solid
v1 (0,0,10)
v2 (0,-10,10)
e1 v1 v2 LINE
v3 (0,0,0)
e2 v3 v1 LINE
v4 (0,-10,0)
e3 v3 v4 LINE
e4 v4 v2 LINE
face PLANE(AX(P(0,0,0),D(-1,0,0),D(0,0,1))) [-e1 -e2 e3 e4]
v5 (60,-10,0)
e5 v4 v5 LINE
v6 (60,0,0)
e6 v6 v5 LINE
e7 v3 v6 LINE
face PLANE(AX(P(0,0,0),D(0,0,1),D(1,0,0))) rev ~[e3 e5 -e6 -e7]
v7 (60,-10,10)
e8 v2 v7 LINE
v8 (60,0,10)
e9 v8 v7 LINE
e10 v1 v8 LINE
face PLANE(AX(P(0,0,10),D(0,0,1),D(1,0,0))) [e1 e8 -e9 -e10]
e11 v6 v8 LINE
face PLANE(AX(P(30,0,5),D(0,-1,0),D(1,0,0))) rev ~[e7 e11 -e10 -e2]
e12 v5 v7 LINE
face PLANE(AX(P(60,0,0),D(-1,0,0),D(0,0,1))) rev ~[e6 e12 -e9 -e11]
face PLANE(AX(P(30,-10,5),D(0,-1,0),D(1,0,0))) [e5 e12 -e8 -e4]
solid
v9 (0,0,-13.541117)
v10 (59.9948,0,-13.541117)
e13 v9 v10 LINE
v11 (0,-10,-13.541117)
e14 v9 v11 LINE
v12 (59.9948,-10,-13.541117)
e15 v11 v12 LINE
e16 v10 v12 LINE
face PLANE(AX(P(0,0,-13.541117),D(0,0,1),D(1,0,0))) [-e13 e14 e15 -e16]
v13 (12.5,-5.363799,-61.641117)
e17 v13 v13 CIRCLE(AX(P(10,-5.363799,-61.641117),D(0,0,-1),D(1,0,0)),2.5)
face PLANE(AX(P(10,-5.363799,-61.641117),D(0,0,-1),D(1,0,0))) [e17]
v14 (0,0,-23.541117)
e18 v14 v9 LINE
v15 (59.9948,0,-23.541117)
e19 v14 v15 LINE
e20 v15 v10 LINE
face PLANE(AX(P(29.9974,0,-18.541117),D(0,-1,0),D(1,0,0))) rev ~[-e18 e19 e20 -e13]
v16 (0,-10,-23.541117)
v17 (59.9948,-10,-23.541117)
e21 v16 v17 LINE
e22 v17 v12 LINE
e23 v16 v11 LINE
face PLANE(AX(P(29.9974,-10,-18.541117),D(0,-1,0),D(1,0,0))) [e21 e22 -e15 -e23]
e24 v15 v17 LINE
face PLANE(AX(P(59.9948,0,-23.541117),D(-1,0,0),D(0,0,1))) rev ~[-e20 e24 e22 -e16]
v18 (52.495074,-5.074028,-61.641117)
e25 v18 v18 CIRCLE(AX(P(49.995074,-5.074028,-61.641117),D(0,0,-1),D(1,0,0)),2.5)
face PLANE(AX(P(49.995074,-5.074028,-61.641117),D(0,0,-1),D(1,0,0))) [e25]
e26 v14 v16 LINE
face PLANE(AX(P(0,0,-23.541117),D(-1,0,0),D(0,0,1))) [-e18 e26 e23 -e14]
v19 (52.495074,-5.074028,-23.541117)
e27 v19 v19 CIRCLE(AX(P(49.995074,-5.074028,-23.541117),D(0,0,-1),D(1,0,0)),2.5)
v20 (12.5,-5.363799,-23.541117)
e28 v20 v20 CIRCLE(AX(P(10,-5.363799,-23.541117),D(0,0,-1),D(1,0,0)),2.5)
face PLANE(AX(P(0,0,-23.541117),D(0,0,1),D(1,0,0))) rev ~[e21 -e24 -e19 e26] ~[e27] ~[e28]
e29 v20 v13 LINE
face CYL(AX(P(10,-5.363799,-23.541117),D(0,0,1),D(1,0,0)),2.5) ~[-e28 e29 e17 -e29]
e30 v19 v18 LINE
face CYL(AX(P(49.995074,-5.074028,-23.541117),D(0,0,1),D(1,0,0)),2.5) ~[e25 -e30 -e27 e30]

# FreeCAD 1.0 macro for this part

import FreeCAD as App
import Part
import Sketcher
from FreeCAD import Vector


def add_polygon(sketch, points):
    """Adds a closed chain of lines whose ends are joined by coincident constraints."""
    first, n = sketch.GeometryCount, len(points)
    for a, b in zip(points, points[1:] + points[:1]):
        sketch.addGeometry(Part.LineSegment(App.Vector(*a, 0), App.Vector(*b, 0)), False)
    for i in range(n):
        sketch.addConstraint(Sketcher.Constraint("Coincident", first + i, 2, first + (i + 1) % n, 1))

doc = App.newDocument("Part")
params = doc.addObject("Spreadsheet::Sheet", "Params")
for row, (alias, value) in enumerate([
    ("sketch1_width", "60 mm"),
    ("sketch1_height", "10 mm"),
    ("pad1_length", "10 mm"),
    ("sketch2_diameter", "5 mm"),
    ("pad2_length", "38.1 mm"),
], start=1):
    params.set(f"A{row}", alias)
    params.set(f"B{row}", "=" + value)
    params.setAlias(f"B{row}", alias)

body = doc.addObject("PartDesign::Body", "Body")
body.AllowCompound = True

# Sketch on XZ plane
sketch1 = body.newObject("Sketcher::SketchObject", "Sketch")
sketch1.AttachmentSupport = (doc.getObject("XZ_Plane"), [""])
sketch1.MapMode = "FlatFace"
add_polygon(sketch1, [(0, 10), (0, 0), (60, 0), (60, 10)])  # lines 0-3
add_polygon(sketch1, [(0, -14), (0, -24), (60, -24), (60, -14)])  # lines 4-7
sketch1.addConstraint(Sketcher.Constraint("Vertical", 0))
sketch1.addConstraint(Sketcher.Constraint("Horizontal", 1))
sketch1.addConstraint(Sketcher.Constraint("Vertical", 2))
sketch1.addConstraint(Sketcher.Constraint("Horizontal", 3))
sketch1.addConstraint(Sketcher.Constraint("Vertical", 4))
sketch1.addConstraint(Sketcher.Constraint("Horizontal", 5))
sketch1.addConstraint(Sketcher.Constraint("Vertical", 6))
sketch1.addConstraint(Sketcher.Constraint("Horizontal", 7))
sketch1.addConstraint(Sketcher.Constraint("Coincident", 0, 2, -1, 1))
sketch1.addConstraint(Sketcher.Constraint("PointOnObject", 4, 2, -2))
sketch1.addConstraint(Sketcher.Constraint("Equal", 2, 4))
sketch1.addConstraint(Sketcher.Constraint("DistanceX", 1, 1, 1, 2, 60.0))
sketch1.addConstraint(Sketcher.Constraint("DistanceY", 0, 2, 0, 1, 10.0))
sketch1.addConstraint(Sketcher.Constraint("DistanceX", 5, 1, 5, 2, 59.9948))
sketch1.addConstraint(Sketcher.Constraint("DistanceY", 4, 2, -1, 1, 23.541117))
sketch1.setExpression("Constraints[19]", "Params.sketch1_width")
sketch1.setExpression("Constraints[20]", "Params.sketch1_height")
pad1 = body.newObject("PartDesign::Pad", "Pad")
pad1.Profile = sketch1
pad1.setExpression("Length", "Params.pad1_length")

# Sketch on XY plane
sketch2 = body.newObject("Sketcher::SketchObject", "Sketch001")
sketch2.AttachmentSupport = (doc.getObject("XY_Plane"), [""])
sketch2.MapMode = "FlatFace"
sketch2.AttachmentOffset = App.Placement(Vector(0, 0, -23.541117), App.Rotation())
sketch2.addGeometry(Part.Circle(Vector(10, -5.4, 0), Vector(0, 0, 1), 2.5), False)
sketch2.addGeometry(Part.Circle(Vector(50, -5.1, 0), Vector(0, 0, 1), 2.5), False)
sketch2.addConstraint(Sketcher.Constraint("Equal", 0, 1))
sketch2.addConstraint(Sketcher.Constraint("Diameter", 0, 5.0))
sketch2.addConstraint(Sketcher.Constraint("DistanceX", -1, 1, 0, 3, 10.0))
sketch2.addConstraint(Sketcher.Constraint("DistanceY", 0, 3, -1, 1, 5.363799))
sketch2.addConstraint(Sketcher.Constraint("DistanceY", 1, 3, -1, 1, 5.074028))
sketch2.addConstraint(Sketcher.Constraint("DistanceX", -1, 1, 1, 3, 49.995074))
sketch2.setExpression("Constraints[1]", "Params.sketch2_diameter")
pad2 = body.newObject("PartDesign::Pad", "Pad001")
pad2.Profile = sketch2
pad2.setExpression("Length", "Params.pad2_length")
pad2.Reversed = True

doc.recompute()
